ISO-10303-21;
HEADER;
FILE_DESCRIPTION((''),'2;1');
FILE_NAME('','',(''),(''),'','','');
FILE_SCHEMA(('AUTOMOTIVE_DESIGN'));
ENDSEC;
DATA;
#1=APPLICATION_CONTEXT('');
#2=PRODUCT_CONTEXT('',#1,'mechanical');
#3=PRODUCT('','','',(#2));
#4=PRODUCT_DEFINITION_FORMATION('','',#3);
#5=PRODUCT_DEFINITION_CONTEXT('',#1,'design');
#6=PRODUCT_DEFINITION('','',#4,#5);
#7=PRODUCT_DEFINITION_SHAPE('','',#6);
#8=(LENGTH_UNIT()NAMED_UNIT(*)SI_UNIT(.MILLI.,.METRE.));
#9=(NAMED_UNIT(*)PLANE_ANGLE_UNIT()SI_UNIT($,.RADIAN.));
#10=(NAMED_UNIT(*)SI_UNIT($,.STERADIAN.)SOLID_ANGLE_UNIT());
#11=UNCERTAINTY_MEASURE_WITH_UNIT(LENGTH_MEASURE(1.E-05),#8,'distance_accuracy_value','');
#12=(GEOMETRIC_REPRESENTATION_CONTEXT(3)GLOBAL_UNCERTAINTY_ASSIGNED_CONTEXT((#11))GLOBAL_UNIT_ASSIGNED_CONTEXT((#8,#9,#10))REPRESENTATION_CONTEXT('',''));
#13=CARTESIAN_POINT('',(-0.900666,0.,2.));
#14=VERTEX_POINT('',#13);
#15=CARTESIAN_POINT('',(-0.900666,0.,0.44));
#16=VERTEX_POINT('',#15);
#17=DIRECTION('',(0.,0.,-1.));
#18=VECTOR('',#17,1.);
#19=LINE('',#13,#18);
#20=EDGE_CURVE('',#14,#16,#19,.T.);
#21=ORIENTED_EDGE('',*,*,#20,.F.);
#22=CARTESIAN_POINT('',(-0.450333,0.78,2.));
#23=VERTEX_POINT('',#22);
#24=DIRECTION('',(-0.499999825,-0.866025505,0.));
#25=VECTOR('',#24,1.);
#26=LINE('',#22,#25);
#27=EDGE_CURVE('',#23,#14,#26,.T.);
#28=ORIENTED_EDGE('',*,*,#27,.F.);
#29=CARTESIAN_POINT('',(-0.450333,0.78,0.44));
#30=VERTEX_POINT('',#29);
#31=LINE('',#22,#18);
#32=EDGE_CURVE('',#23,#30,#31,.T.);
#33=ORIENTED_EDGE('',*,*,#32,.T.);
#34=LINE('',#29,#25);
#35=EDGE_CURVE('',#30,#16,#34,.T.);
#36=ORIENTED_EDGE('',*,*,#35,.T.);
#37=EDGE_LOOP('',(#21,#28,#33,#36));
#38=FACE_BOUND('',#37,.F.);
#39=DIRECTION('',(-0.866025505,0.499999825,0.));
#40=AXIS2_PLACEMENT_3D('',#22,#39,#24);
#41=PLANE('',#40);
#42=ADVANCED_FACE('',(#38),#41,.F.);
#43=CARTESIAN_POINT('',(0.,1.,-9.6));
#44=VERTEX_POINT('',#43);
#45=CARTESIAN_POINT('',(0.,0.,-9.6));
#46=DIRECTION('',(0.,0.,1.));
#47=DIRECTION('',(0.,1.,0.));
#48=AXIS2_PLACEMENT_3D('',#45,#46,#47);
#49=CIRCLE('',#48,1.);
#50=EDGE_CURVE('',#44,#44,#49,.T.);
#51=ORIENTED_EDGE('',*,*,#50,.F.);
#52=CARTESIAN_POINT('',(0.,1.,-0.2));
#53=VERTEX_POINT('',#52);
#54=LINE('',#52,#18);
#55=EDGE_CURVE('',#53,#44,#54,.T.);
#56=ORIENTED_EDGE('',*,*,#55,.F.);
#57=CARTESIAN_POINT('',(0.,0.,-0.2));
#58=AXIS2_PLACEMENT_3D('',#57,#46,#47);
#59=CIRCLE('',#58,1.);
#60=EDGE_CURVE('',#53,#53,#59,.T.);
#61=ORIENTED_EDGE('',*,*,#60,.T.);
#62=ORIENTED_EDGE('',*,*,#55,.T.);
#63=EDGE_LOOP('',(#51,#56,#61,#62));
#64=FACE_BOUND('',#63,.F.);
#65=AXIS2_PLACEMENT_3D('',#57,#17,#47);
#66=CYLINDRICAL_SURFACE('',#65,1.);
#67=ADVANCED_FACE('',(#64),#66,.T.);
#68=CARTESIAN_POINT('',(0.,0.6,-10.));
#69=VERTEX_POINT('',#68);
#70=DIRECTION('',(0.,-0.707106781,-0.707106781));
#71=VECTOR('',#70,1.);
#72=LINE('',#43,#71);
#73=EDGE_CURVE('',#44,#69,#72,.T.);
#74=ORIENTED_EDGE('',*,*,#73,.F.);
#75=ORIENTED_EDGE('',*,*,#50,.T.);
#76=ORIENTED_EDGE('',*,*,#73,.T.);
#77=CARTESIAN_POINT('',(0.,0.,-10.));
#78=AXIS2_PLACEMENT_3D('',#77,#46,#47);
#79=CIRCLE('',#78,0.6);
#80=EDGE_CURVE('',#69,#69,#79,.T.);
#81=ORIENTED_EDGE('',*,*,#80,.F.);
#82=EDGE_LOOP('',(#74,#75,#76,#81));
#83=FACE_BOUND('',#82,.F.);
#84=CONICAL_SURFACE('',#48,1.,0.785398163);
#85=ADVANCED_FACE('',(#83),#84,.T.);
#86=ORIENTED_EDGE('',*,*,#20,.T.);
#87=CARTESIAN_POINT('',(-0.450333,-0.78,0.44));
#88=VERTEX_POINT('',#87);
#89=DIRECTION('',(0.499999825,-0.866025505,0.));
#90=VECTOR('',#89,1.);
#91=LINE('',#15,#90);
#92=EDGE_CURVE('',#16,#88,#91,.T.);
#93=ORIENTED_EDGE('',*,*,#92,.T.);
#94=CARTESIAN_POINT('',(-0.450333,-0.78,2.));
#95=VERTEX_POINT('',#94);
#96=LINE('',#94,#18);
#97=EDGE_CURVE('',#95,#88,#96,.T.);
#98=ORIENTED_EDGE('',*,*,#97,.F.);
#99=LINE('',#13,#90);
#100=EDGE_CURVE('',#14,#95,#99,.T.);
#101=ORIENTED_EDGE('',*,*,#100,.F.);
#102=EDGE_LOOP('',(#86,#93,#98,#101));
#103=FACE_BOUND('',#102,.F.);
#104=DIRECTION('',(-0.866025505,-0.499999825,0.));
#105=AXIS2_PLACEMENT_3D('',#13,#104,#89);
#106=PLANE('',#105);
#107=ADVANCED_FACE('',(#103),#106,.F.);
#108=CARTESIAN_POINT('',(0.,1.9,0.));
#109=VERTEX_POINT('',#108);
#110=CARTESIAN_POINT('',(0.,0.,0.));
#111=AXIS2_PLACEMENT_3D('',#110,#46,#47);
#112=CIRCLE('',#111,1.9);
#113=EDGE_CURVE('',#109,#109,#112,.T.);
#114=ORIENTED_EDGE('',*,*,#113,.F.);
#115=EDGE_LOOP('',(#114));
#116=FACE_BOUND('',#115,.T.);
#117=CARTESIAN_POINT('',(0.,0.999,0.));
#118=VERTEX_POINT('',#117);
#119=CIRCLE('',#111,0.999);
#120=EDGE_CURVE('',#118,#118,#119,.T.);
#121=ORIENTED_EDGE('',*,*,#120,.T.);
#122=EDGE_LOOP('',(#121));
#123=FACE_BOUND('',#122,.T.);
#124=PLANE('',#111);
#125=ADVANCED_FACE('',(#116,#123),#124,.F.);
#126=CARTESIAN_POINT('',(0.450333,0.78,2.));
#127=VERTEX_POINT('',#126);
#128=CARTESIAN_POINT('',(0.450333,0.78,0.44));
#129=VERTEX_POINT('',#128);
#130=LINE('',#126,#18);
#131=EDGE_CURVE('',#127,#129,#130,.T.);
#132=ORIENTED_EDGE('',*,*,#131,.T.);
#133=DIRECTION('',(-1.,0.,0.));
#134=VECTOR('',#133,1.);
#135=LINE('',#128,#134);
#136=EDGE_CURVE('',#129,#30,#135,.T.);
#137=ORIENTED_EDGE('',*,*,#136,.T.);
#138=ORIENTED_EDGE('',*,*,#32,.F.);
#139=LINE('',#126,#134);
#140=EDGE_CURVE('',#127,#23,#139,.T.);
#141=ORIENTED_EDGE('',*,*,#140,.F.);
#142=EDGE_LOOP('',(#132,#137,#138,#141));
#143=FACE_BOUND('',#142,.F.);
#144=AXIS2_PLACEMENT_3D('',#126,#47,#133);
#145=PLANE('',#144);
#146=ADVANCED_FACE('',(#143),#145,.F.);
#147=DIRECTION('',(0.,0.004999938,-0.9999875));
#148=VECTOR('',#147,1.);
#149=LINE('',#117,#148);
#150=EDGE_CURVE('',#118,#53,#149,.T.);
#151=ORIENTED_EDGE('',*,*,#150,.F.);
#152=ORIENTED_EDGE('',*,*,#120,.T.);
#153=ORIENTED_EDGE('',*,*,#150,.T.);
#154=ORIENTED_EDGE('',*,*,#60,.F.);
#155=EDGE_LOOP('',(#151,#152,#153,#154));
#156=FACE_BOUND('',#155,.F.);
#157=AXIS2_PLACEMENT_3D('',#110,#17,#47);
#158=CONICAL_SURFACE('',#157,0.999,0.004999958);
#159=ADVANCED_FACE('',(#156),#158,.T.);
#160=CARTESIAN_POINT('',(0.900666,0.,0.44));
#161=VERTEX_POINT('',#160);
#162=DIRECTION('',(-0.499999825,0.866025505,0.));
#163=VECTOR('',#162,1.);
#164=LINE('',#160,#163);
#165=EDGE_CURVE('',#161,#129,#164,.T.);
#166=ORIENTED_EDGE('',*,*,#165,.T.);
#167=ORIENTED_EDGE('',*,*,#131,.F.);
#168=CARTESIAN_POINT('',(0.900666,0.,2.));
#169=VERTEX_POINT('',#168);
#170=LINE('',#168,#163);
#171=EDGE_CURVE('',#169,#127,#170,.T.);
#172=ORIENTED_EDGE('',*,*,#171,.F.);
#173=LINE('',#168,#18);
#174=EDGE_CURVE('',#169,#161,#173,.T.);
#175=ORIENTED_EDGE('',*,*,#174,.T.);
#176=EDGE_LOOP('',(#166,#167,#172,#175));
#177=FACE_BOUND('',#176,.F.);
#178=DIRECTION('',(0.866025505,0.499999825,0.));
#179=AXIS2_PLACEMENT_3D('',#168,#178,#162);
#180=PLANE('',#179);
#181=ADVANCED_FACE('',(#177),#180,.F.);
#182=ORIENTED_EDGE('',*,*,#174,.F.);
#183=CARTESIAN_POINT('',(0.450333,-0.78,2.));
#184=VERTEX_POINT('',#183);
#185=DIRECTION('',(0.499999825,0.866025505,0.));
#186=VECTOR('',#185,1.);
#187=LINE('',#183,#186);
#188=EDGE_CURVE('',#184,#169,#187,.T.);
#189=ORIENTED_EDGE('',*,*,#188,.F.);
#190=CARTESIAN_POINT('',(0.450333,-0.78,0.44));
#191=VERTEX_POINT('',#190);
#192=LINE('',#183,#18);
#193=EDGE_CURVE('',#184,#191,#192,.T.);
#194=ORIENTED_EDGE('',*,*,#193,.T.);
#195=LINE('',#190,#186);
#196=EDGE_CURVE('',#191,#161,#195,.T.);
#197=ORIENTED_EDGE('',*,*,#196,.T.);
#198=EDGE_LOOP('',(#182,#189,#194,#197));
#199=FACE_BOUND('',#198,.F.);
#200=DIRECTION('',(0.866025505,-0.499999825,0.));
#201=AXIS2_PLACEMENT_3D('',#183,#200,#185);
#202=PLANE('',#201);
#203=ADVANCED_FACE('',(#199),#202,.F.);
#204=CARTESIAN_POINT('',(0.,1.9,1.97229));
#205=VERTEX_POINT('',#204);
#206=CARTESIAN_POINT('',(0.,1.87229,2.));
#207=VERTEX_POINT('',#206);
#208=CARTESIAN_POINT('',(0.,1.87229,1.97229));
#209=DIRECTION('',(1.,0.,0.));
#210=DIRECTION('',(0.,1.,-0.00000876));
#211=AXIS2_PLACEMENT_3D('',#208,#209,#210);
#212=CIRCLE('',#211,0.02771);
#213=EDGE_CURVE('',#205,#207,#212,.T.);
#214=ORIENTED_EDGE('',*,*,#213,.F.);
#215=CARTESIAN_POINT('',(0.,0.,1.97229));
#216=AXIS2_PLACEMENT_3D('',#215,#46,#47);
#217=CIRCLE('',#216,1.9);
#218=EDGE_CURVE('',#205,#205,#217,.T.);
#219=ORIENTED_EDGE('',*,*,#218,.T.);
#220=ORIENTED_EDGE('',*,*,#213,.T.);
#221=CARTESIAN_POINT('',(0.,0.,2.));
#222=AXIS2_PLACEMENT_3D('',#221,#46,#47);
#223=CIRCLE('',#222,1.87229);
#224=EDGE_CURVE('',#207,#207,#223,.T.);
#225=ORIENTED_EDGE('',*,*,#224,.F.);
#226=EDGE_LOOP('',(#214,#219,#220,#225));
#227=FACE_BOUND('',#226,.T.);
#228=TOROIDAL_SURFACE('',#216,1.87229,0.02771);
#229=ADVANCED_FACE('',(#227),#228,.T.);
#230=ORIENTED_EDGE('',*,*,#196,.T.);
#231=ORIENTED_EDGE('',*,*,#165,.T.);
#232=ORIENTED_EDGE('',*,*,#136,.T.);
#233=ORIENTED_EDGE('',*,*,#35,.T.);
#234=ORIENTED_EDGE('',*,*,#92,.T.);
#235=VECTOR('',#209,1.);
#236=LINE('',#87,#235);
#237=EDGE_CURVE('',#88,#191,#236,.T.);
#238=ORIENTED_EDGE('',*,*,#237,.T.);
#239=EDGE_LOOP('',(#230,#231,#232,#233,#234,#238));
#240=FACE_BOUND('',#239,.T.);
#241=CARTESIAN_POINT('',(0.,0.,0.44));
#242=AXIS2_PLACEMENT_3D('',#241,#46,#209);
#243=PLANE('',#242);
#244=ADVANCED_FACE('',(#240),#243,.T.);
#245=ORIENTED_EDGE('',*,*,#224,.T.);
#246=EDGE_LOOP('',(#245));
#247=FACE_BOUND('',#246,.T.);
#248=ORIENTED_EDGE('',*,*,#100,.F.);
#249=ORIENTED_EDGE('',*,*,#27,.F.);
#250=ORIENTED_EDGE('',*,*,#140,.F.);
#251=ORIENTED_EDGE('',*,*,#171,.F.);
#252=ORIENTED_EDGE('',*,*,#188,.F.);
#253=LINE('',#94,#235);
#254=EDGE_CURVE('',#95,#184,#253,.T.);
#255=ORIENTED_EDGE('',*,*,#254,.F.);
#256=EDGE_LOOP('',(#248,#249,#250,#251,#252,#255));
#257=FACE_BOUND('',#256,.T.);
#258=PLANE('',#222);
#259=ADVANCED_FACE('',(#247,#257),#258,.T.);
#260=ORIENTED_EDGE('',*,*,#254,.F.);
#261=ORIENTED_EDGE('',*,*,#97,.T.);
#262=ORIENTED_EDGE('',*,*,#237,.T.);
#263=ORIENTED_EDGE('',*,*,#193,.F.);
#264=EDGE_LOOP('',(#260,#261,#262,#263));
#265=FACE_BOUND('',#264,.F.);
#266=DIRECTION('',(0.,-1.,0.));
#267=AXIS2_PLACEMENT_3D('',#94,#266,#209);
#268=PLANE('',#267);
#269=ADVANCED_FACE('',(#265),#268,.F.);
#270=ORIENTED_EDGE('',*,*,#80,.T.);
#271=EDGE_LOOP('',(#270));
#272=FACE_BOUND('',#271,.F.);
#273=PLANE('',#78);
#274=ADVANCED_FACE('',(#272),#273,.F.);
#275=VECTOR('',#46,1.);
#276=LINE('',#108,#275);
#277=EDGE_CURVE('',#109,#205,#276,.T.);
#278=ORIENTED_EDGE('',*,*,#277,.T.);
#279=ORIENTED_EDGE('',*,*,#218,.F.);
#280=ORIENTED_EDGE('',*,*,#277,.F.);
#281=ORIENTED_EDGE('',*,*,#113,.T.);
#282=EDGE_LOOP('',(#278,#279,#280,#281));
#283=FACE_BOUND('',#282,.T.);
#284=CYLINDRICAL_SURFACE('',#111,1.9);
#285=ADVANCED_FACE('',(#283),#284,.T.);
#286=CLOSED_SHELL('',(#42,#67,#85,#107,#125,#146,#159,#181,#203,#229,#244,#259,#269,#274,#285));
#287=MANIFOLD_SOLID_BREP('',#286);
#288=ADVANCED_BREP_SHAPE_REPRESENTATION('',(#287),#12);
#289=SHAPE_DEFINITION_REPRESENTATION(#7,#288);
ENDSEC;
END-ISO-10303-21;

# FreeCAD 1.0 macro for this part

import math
import FreeCAD as App
import Part
import Sketcher
from FreeCAD import Vector
Q = App.Units.Quantity


def add_polygon(sketch, points):
    """Adds a closed chain of lines whose ends are joined by coincident constraints."""
    first, n = sketch.GeometryCount, len(points)
    for a, b in zip(points, points[1:] + points[:1]):
        sketch.addGeometry(Part.LineSegment(App.Vector(*a, 0), App.Vector(*b, 0)), False)
    for i in range(n):
        sketch.addConstraint(Sketcher.Constraint("Coincident", first + i, 2, first + (i + 1) % n, 1))

doc = App.newDocument("Part")
params = doc.addObject("Spreadsheet::Sheet", "Params")
for row, (alias, value) in enumerate([
    ("sketch1_height", "12 mm"),
    ("sketch1_width", "0.6 mm"),
    ("sketch1_height2", "9.4 mm"),
    ("revolution_angle", "360 deg"),
    ("pocket1_length", "1.56 mm"),
], start=1):
    params.set(f"A{row}", alias)
    params.set(f"B{row}", "=" + value)
    params.setAlias(f"B{row}", alias)

body = doc.addObject("PartDesign::Body", "Body")

sketch1 = body.newObject("Sketcher::SketchObject", "Sketch")
sketch1.AttachmentSupport = (doc.getObject("YZ_Plane"), [""])
sketch1.MapMode = "FlatFace"
sketch1.addGeometry(Part.LineSegment(Vector(0.999, 0, 0), Vector(1.9, 0, 0)), False)
sketch1.addGeometry(Part.LineSegment(Vector(1.9, 0, 0), Vector(1.9, 1.972, 0)), False)
sketch1.addGeometry(Part.ArcOfCircle(Part.Circle(Vector(1.872, 1.972, 0), Vector(0, 0, 1), 0.028), math.radians(0), math.radians(90)), False)
sketch1.addGeometry(Part.LineSegment(Vector(1.872, 2, 0), Vector(0, 2, 0)), False)
sketch1.addGeometry(Part.LineSegment(Vector(0, 2, 0), Vector(0, -10, 0)), False)
sketch1.addGeometry(Part.LineSegment(Vector(0, -10, 0), Vector(0.6, -10, 0)), False)
sketch1.addGeometry(Part.LineSegment(Vector(0.6, -10, 0), Vector(1, -9.6, 0)), False)
sketch1.addGeometry(Part.LineSegment(Vector(1, -9.6, 0), Vector(1, -0.2, 0)), False)
sketch1.addGeometry(Part.LineSegment(Vector(1, -0.2, 0), Vector(0.999, 0, 0)), False)
sketch1.addConstraint(Sketcher.Constraint("Coincident", 0, 2, 1, 1))
sketch1.addConstraint(Sketcher.Constraint("Coincident", 1, 2, 2, 1))
sketch1.addConstraint(Sketcher.Constraint("Coincident", 2, 2, 3, 1))
sketch1.addConstraint(Sketcher.Constraint("Coincident", 3, 2, 4, 1))
sketch1.addConstraint(Sketcher.Constraint("Coincident", 4, 2, 5, 1))
sketch1.addConstraint(Sketcher.Constraint("Coincident", 5, 2, 6, 1))
sketch1.addConstraint(Sketcher.Constraint("Coincident", 6, 2, 7, 1))
sketch1.addConstraint(Sketcher.Constraint("Coincident", 7, 2, 8, 1))
sketch1.addConstraint(Sketcher.Constraint("Coincident", 8, 2, 0, 1))
sketch1.addConstraint(Sketcher.Constraint("Horizontal", 0))
sketch1.addConstraint(Sketcher.Constraint("Vertical", 1))
sketch1.addConstraint(Sketcher.Constraint("Horizontal", 3))
sketch1.addConstraint(Sketcher.Constraint("Vertical", 4))
sketch1.addConstraint(Sketcher.Constraint("Horizontal", 5))
sketch1.addConstraint(Sketcher.Constraint("Vertical", 7))
sketch1.addConstraint(Sketcher.Constraint("PointOnObject", 0, 2, -1))
sketch1.addConstraint(Sketcher.Constraint("PointOnObject", 3, 2, -2))
sketch1.addConstraint(Sketcher.Constraint("Horizontal", 2, 3, 1, 2))
sketch1.addConstraint(Sketcher.Constraint("DistanceY", 4, 2, 4, 1, 12.0))
sketch1.addConstraint(Sketcher.Constraint("Angle", 6, Q("45 deg")))
sketch1.addConstraint(Sketcher.Constraint("DistanceX", 5, 1, 5, 2, 0.6))
sketch1.addConstraint(Sketcher.Constraint("DistanceY", 7, 1, 7, 2, 9.4))
sketch1.addConstraint(Sketcher.Constraint("DistanceY", -1, 1, 2, 2, 2.0))
sketch1.addConstraint(Sketcher.Constraint("DistanceX", -1, 1, 6, 2, 1.0))
sketch1.addConstraint(Sketcher.Constraint("DistanceX", -1, 1, 0, 2, 1.9))
sketch1.addConstraint(Sketcher.Constraint("DistanceX", 0, 1, 0, 2, 0.901))
sketch1.addConstraint(Sketcher.Constraint("Radius", 2, 0.02771))
sketch1.addConstraint(Sketcher.Constraint("DistanceX", 3, 2, 3, 1, 1.87229))
sketch1.setExpression("Constraints[18]", "Params.sketch1_height")
sketch1.setExpression("Constraints[20]", "Params.sketch1_width")
sketch1.setExpression("Constraints[21]", "Params.sketch1_height2")
revolution = body.newObject("PartDesign::Revolution", "Revolution")
revolution.Profile = sketch1
revolution.ReferenceAxis = (sketch1, ["V_Axis"])
revolution.setExpression("Angle", "Params.revolution_angle")

sketch2 = body.newObject("Sketcher::SketchObject", "Sketch001")
sketch2.AttachmentSupport = (doc.getObject("XY_Plane"), [""])
sketch2.MapMode = "FlatFace"
sketch2.AttachmentOffset = App.Placement(Vector(0, 0, 2), App.Rotation())
add_polygon(sketch2, [(0.9, 0), (0.5, 0.8), (-0.5, 0.8), (-0.9, 0), (-0.5, -0.8), (0.5, -0.8)])
sketch2.addConstraint(Sketcher.Constraint("Horizontal", 1))
sketch2.addConstraint(Sketcher.Constraint("Horizontal", 4))
sketch2.addConstraint(Sketcher.Constraint("Symmetric", 0, 2, 3, 2, -1, 1))
sketch2.addConstraint(Sketcher.Constraint("Symmetric", 2, 2, 5, 2, -1, 1))
sketch2.addConstraint(Sketcher.Constraint("PointOnObject", 2, 2, -1))
sketch2.addConstraint(Sketcher.Constraint("Parallel", 2, 5))
sketch2.addConstraint(Sketcher.Constraint("Vertical", 1, 2, 3, 2))
sketch2.addConstraint(Sketcher.Constraint("Angle", 0, Q("119.999988 deg")))
sketch2.addConstraint(Sketcher.Constraint("DistanceY", -1, 1, 0, 2, 0.78))
sketch2.addConstraint(Sketcher.Constraint("DistanceX", 2, 2, 0, 2, 1.350999))
pocket1 = body.newObject("PartDesign::Pocket", "Pocket")
pocket1.Profile = sketch2
pocket1.setExpression("Length", "Params.pocket1_length")

doc.recompute()
